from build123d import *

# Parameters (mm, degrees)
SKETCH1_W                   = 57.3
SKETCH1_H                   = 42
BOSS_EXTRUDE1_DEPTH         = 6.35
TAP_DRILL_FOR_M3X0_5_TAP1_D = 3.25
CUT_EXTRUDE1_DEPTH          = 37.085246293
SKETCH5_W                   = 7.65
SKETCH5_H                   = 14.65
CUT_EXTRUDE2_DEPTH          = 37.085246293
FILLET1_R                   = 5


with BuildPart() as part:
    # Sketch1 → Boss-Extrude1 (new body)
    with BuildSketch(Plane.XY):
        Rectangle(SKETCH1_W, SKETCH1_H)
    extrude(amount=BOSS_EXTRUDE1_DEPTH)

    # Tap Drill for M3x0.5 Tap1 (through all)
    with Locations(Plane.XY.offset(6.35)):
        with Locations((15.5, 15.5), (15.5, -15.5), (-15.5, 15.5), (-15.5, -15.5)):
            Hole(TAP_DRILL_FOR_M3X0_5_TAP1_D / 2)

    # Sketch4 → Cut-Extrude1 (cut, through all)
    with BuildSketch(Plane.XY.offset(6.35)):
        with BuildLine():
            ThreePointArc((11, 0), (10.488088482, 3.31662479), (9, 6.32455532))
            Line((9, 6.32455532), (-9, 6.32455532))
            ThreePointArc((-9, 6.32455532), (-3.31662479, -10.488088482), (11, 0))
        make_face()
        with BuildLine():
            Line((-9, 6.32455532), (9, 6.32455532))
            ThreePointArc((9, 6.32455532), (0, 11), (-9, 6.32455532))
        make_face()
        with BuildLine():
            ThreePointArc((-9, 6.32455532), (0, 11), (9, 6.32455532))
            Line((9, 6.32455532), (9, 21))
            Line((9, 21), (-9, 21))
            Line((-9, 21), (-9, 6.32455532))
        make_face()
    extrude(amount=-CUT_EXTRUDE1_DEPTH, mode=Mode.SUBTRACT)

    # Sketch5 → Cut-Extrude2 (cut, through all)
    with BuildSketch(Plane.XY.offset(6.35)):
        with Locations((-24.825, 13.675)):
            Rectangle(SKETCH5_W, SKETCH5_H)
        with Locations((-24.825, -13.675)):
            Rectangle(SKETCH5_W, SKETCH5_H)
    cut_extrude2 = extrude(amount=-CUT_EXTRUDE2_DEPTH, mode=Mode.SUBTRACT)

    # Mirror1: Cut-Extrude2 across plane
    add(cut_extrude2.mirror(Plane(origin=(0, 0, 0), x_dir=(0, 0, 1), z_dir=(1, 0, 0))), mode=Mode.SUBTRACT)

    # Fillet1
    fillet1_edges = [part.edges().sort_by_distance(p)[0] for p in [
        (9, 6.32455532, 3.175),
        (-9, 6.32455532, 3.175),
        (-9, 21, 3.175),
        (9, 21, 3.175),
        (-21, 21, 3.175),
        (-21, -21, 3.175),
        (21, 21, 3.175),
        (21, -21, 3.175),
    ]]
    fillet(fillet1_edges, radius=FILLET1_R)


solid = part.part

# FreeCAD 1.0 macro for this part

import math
import FreeCAD as App
import Part
import Sketcher

V = App.Vector
Q = App.Units.Quantity


def edges_at(feature, points):
    """Names of the edges that pass closest to the given points."""
    edges = feature.Shape.Edges
    near = lambda p: min(range(len(edges)), key=lambda i: edges[i].distToShape(Part.Vertex(*p))[0])
    return sorted({f"Edge{near(p) + 1}" for p in points})


def add_polygon(sketch, points):
    """Adds a closed chain of lines whose ends are joined by coincident constraints."""
    first, n = sketch.GeometryCount, len(points)
    for a, b in zip(points, points[1:] + points[:1]):
        sketch.addGeometry(Part.LineSegment(App.Vector(*a, 0), App.Vector(*b, 0)), False)
    for i in range(n):
        sketch.addConstraint(Sketcher.Constraint("Coincident", first + i, 2, first + (i + 1) % n, 1))

doc = App.newDocument("Part")
body = doc.addObject("PartDesign::Body", "Body")

sketch1 = doc.addObject("Sketcher::SketchObject", "Sketch")
body.addObject(sketch1)
sketch1.AttachmentSupport = (doc.XY_Plane, [""])
sketch1.MapMode = "FlatFace"
add_polygon(sketch1, [(-29, 21), (-29, -21), (29, -21), (29, 21)])
sketch1.addConstraint(Sketcher.Constraint("Vertical", 0))
sketch1.addConstraint(Sketcher.Constraint("Horizontal", 1))
sketch1.addConstraint(Sketcher.Constraint("Vertical", 2))
sketch1.addConstraint(Sketcher.Constraint("Horizontal", 3))
sketch1.addConstraint(Sketcher.Constraint("Symmetric", 0, 2, 2, 2, -1, 1))
sketch1.addConstraint(Sketcher.Constraint("DistanceY", 0, 2, 0, 1, Q("42 mm")))
sketch1.addConstraint(Sketcher.Constraint("DistanceX", 1, 1, 1, 2, Q("57.3 mm")))
pad1 = doc.addObject("PartDesign::Pad", "Pad")
body.addObject(pad1)
pad1.Profile = sketch1
pad1.Length = 6.35

sketch2 = doc.addObject("Sketcher::SketchObject", "Sketch001")
body.addObject(sketch2)
sketch2.AttachmentSupport = (doc.XY_Plane, [""])
sketch2.MapMode = "FlatFace"
sketch2.AttachmentOffset = App.Placement(V(0, 0, 6.35), App.Rotation())
sketch2.addGeometry(Part.Circle(V(15.5, 15.5, 0), V(0, 0, 1), 1.6), False)
sketch2.addGeometry(Part.Circle(V(15.5, -15.5, 0), V(0, 0, 1), 1.6), False)
sketch2.addGeometry(Part.Circle(V(-15.5, 15.5, 0), V(0, 0, 1), 1.6), False)
sketch2.addGeometry(Part.Circle(V(-15.5, -15.5, 0), V(0, 0, 1), 1.6), False)
sketch2.addConstraint(Sketcher.Constraint("Equal", 0, 1))
sketch2.addConstraint(Sketcher.Constraint("Equal", 1, 2))
sketch2.addConstraint(Sketcher.Constraint("Equal", 2, 3))
sketch2.addConstraint(Sketcher.Constraint("Symmetric", 1, 3, 2, 3, -1, 1))
sketch2.addConstraint(Sketcher.Constraint("Symmetric", 0, 3, 3, 3, -1, 1))
sketch2.addConstraint(Sketcher.Constraint("Symmetric", 0, 3, 2, 3, -2))
sketch2.addConstraint(Sketcher.Constraint("Diameter", 0, Q("3.25 mm")))
sketch2.addConstraint(Sketcher.Constraint("DistanceY", 1, 3, 0, 3, Q("31 mm")))
sketch2.addConstraint(Sketcher.Constraint("DistanceX", 2, 3, 0, 3, Q("31 mm")))
doc.recompute()
hole = doc.addObject("PartDesign::Hole", "Hole")
body.addObject(hole)
hole.Profile = sketch2
hole.ThreadType = "None"
hole.Diameter = 3.25
hole.DepthType = "ThroughAll"

sketch3 = doc.addObject("Sketcher::SketchObject", "Sketch002")
body.addObject(sketch3)
sketch3.AttachmentSupport = (doc.XY_Plane, [""])
sketch3.MapMode = "FlatFace"
sketch3.AttachmentOffset = App.Placement(V(0, 0, 6.35), App.Rotation())
sketch3.addGeometry(Part.ArcOfCircle(Part.Circle(V(0, 0, 0), V(0, 0, 1), 11), math.radians(0), math.radians(35)), False)
sketch3.addGeometry(Part.LineSegment(V(9, 6, 0), V(9, 21, 0)), False)
sketch3.addGeometry(Part.LineSegment(V(9, 21, 0), V(-9, 21, 0)), False)
sketch3.addGeometry(Part.LineSegment(V(-9, 21, 0), V(-9, 6, 0)), False)
sketch3.addGeometry(Part.ArcOfCircle(Part.Circle(V(0, 0, 0), V(0, 0, 1), 11), math.radians(145), math.radians(360)), False)
sketch3.addConstraint(Sketcher.Constraint("Coincident", 0, 2, 1, 1))
sketch3.addConstraint(Sketcher.Constraint("Coincident", 1, 2, 2, 1))
sketch3.addConstraint(Sketcher.Constraint("Coincident", 2, 2, 3, 1))
sketch3.addConstraint(Sketcher.Constraint("Coincident", 3, 2, 4, 1))
sketch3.addConstraint(Sketcher.Constraint("Tangent", 4, 2, 0, 1))
sketch3.addConstraint(Sketcher.Constraint("Vertical", 1))
sketch3.addConstraint(Sketcher.Constraint("Horizontal", 2))
sketch3.addConstraint(Sketcher.Constraint("Vertical", 3))
sketch3.addConstraint(Sketcher.Constraint("Coincident", 0, 3, -1, 1))
sketch3.addConstraint(Sketcher.Constraint("Equal", 0, 4))
sketch3.addConstraint(Sketcher.Constraint("PointOnObject", 4, 2, -1))
sketch3.addConstraint(Sketcher.Constraint("Horizontal", 0, 2, 3, 2))
sketch3.addConstraint(Sketcher.Constraint("Radius", 0, Q("11 mm")))
sketch3.addConstraint(Sketcher.Constraint("DistanceX", 2, 2, 2, 1, Q("18 mm")))
sketch3.addConstraint(Sketcher.Constraint("DistanceY", -1, 1, 1, 2, Q("21 mm")))
pocket1 = doc.addObject("PartDesign::Pocket", "Pocket")
body.addObject(pocket1)
pocket1.Profile = sketch3
pocket1.Type = "ThroughAll"

sketch4 = doc.addObject("Sketcher::SketchObject", "Sketch003")
body.addObject(sketch4)
sketch4.AttachmentSupport = (doc.XY_Plane, [""])
sketch4.MapMode = "FlatFace"
sketch4.AttachmentOffset = App.Placement(V(0, 0, 6.35), App.Rotation())
add_polygon(sketch4, [(-29, 21), (-29, 6), (-21, 6), (-21, 21)])
add_polygon(sketch4, [(-29, -6), (-29, -21), (-21, -21), (-21, -6)])
sketch4.addConstraint(Sketcher.Constraint("Vertical", 0))
sketch4.addConstraint(Sketcher.Constraint("Horizontal", 1))
sketch4.addConstraint(Sketcher.Constraint("Vertical", 2))
sketch4.addConstraint(Sketcher.Constraint("Horizontal", 3))
sketch4.addConstraint(Sketcher.Constraint("Vertical", 4))
sketch4.addConstraint(Sketcher.Constraint("Horizontal", 5))
sketch4.addConstraint(Sketcher.Constraint("Vertical", 6))
sketch4.addConstraint(Sketcher.Constraint("Horizontal", 7))
sketch4.addConstraint(Sketcher.Constraint("Symmetric", 3, 2, 4, 2, -1))
sketch4.addConstraint(Sketcher.Constraint("Symmetric", 1, 2, 6, 2, -1))
sketch4.addConstraint(Sketcher.Constraint("DistanceX", 1, 2, -1, 1, Q("21 mm")))
sketch4.addConstraint(Sketcher.Constraint("DistanceY", -1, 1, 2, 2, Q("21 mm")))
sketch4.addConstraint(Sketcher.Constraint("DistanceX", 1, 1, 1, 2, Q("7.65 mm")))
sketch4.addConstraint(Sketcher.Constraint("DistanceY", 0, 2, 0, 1, Q("14.65 mm")))
pocket2 = doc.addObject("PartDesign::Pocket", "Pocket001")
body.addObject(pocket2)
pocket2.Profile = sketch4
pocket2.Type = "ThroughAll"
doc.recompute()

mirrored = doc.addObject("PartDesign::Mirrored", "Mirrored")
body.addObject(mirrored)
mirrored.Originals = [pocket2]
mirrored.MirrorPlane = (doc.YZ_Plane, [""])
body.Tip = mirrored
doc.recompute()

fillet = doc.addObject("PartDesign::Fillet", "Fillet")
body.addObject(fillet)
fillet.Base = (mirrored, edges_at(mirrored, [
    (9, 6.325, 3.175),
    (-9, 6.325, 3.175),
    (-9, 21, 3.175),
    (9, 21, 3.175),
    (-21, 21, 3.175),
    (-21, -21, 3.175),
    (21, 21, 3.175),
    (21, -21, 3.175),
]))
fillet.Radius = 5

doc.recompute()
